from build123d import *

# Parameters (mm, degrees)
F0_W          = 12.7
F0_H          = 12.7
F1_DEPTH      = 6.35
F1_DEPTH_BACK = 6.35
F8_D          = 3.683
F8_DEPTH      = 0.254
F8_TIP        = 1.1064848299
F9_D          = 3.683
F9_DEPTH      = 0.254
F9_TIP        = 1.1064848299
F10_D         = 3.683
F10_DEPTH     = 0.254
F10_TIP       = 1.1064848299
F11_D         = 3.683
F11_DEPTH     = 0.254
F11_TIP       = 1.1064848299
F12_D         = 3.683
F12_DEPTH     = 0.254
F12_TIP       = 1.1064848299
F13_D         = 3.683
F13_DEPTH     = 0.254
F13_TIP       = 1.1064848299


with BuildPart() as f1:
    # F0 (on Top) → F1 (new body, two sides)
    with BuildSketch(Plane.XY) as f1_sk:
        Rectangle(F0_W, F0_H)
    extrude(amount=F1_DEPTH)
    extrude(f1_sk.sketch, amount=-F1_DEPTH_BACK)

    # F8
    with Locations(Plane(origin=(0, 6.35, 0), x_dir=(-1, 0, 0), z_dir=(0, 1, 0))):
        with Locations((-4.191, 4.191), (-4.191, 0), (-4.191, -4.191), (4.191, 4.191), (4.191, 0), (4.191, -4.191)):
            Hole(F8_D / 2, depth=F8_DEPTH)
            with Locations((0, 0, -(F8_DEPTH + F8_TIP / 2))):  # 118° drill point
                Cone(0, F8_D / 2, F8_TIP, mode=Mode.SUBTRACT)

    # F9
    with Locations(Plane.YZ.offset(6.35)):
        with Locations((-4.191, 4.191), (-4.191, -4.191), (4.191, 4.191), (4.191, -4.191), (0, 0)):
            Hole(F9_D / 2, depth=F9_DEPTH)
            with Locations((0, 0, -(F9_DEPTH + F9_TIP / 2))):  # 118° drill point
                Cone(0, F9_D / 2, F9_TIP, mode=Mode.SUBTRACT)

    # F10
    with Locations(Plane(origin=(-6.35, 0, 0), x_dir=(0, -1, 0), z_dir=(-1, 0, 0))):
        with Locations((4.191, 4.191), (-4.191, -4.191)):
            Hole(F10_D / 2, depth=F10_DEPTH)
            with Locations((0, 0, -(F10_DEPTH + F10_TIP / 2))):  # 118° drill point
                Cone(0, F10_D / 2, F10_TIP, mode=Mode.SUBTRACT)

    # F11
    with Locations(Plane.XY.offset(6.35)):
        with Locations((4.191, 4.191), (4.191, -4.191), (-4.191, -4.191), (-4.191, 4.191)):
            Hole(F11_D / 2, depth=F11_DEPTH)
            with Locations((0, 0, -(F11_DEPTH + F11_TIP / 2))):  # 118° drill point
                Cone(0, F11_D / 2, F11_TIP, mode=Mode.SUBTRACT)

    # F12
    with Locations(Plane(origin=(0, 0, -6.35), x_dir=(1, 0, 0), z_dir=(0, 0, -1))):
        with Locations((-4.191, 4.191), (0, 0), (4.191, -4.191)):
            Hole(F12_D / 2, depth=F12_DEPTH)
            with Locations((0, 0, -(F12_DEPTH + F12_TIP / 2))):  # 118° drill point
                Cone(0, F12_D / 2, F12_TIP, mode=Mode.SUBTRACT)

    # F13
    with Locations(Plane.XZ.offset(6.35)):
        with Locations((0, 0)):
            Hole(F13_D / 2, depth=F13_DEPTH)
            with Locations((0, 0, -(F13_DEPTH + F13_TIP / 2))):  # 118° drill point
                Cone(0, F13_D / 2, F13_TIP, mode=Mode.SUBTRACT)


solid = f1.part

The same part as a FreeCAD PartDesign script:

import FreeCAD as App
import Part
import Sketcher
from FreeCAD import Vector
Q = App.Units.Quantity


def add_polygon(sketch, points):
    """Adds a closed chain of lines whose ends are joined by coincident constraints."""
    first, n = sketch.GeometryCount, len(points)
    for a, b in zip(points, points[1:] + points[:1]):
        sketch.addGeometry(Part.LineSegment(App.Vector(*a, 0), App.Vector(*b, 0)), False)
    for i in range(n):
        sketch.addConstraint(Sketcher.Constraint("Coincident", first + i, 2, first + (i + 1) % n, 1))

doc = App.newDocument("Part")
params = doc.addObject("Spreadsheet::Sheet", "Params")
for row, (alias, value) in enumerate([
    ("sketch1_width", "0.5 in"),
    ("pad1_length", "0.25 in"),
    ("pad1_length2", "0.25 in"),
    ("sketch2_diameter", "0.145 in"),
    ("hole_diameter", "0.145 in"),
    ("hole_depth", "0.01 in"),
    ("sketch3_diameter", "0.145 in"),
    ("hole2_diameter", "0.145 in"),
    ("hole2_depth", "0.01 in"),
    ("sketch4_diameter", "0.145 in"),
    ("hole3_diameter", "0.145 in"),
    ("hole3_depth", "0.01 in"),
    ("sketch5_diameter", "0.145 in"),
    ("hole4_diameter", "0.145 in"),
    ("hole4_depth", "0.01 in"),
    ("sketch6_diameter", "0.145 in"),
    ("hole5_diameter", "0.145 in"),
    ("hole5_depth", "0.01 in"),
    ("sketch7_diameter", "0.145 in"),
    ("hole6_diameter", "0.145 in"),
    ("hole6_depth", "0.01 in"),
], start=1):
    params.set(f"A{row}", alias)
    params.set(f"B{row}", "=" + value)
    params.setAlias(f"B{row}", alias)

body = doc.addObject("PartDesign::Body", "Body")

# Sketch on XY plane
sketch1 = body.newObject("Sketcher::SketchObject", "Sketch")
sketch1.AttachmentSupport = (doc.getObject("XY_Plane"), [""])
sketch1.MapMode = "FlatFace"
add_polygon(sketch1, [(-6, 6), (-6, -6), (6, -6), (6, 6)])  # lines 0-3
sketch1.addConstraint([
    Sketcher.Constraint("Vertical", 0),
    Sketcher.Constraint("Horizontal", 1),
    Sketcher.Constraint("Vertical", 2),
    Sketcher.Constraint("Horizontal", 3),
    Sketcher.Constraint("Symmetric", 0, 2, 2, 2, -1, 1),
    Sketcher.Constraint("Equal", 3, 0),
    Sketcher.Constraint("DistanceX", 1, 1, 1, 2, Q("0.5 in")),
])
sketch1.setExpression("Constraints[10]", "Params.sketch1_width")
pad1 = body.newObject("PartDesign::Pad", "Pad")
pad1.Profile = sketch1
pad1.Type = "TwoLengths"
pad1.setExpression("Length", "Params.pad1_length")
pad1.setExpression("Length2", "Params.pad1_length2")

# Sketch on XZ plane
sketch2 = body.newObject("Sketcher::SketchObject", "Sketch001")
sketch2.AttachmentSupport = (doc.getObject("XZ_Plane"), [""])
sketch2.MapMode = "FlatFace"
sketch2.AttachmentOffset = App.Placement(Vector(0, 0, -0.25 * 25.4), App.Rotation())
sketch2.addGeometry([
    Part.Circle(Vector(4.2, 4.2, 0), Vector(0, 0, 1), 1.8),  # 0
    Part.Circle(Vector(4.2, 0, 0), Vector(0, 0, 1), 1.8),  # 1
    Part.Circle(Vector(4.2, -4.2, 0), Vector(0, 0, 1), 1.8),  # 2
    Part.Circle(Vector(-4.2, 4.2, 0), Vector(0, 0, 1), 1.8),  # 3
    Part.Circle(Vector(-4.2, 0, 0), Vector(0, 0, 1), 1.8),  # 4
    Part.Circle(Vector(-4.2, -4.2, 0), Vector(0, 0, 1), 1.8),  # 5
], False)
sketch2.addConstraint([
    Sketcher.Constraint("Equal", 0, 1),
    Sketcher.Constraint("Equal", 1, 2),
    Sketcher.Constraint("Equal", 2, 3),
    Sketcher.Constraint("Equal", 3, 4),
    Sketcher.Constraint("Equal", 4, 5),
    Sketcher.Constraint("Symmetric", 2, 3, 3, 3, -1, 1),
    Sketcher.Constraint("Symmetric", 1, 3, 4, 3, -1, 1),
    Sketcher.Constraint("Symmetric", 0, 3, 5, 3, -1, 1),
    Sketcher.Constraint("Symmetric", 0, 3, 3, 3, -2),
    Sketcher.Constraint("PointOnObject", 1, 3, -1),
    Sketcher.Constraint("Vertical", 0, 3, 1, 3),
    Sketcher.Constraint("Diameter", 0, Q("0.145 in")),
    Sketcher.Constraint("DistanceY", 2, 3, 0, 3, Q("0.33 in")),
    Sketcher.Constraint("DistanceX", 3, 3, 0, 3, Q("0.33 in")),
])
sketch2.setExpression("Constraints[11]", "Params.sketch2_diameter")
doc.recompute()
hole = body.newObject("PartDesign::Hole", "Hole")
hole.Profile = sketch2
hole.ThreadType = "None"
hole.setExpression("Diameter", "Params.hole_diameter")
hole.DepthType = "Dimension"
hole.setExpression("Depth", "Params.hole_depth")
hole.DrillPoint = "Angled"
hole.DrillPointAngle = 118
hole.Reversed = True

# Sketch on YZ plane
sketch3 = body.newObject("Sketcher::SketchObject", "Sketch002")
sketch3.AttachmentSupport = (doc.getObject("YZ_Plane"), [""])
sketch3.MapMode = "FlatFace"
sketch3.AttachmentOffset = App.Placement(Vector(0, 0, 0.25 * 25.4), App.Rotation())
sketch3.addGeometry([
    Part.Circle(Vector(-4.2, 4.2, 0), Vector(0, 0, 1), 1.8),  # 0
    Part.Circle(Vector(-4.2, -4.2, 0), Vector(0, 0, 1), 1.8),  # 1
    Part.Circle(Vector(4.2, 4.2, 0), Vector(0, 0, 1), 1.8),  # 2
    Part.Circle(Vector(4.2, -4.2, 0), Vector(0, 0, 1), 1.8),  # 3
    Part.Circle(Vector(0, 0, 0), Vector(0, 0, 1), 1.8),  # 4
], False)
sketch3.addConstraint([
    Sketcher.Constraint("Coincident", 4, 3, -1, 1),
    Sketcher.Constraint("Equal", 0, 1),
    Sketcher.Constraint("Equal", 1, 2),
    Sketcher.Constraint("Equal", 2, 3),
    Sketcher.Constraint("Equal", 3, 4),
    Sketcher.Constraint("Symmetric", 1, 3, 2, 3, -1, 1),
    Sketcher.Constraint("Symmetric", 0, 3, 3, 3, -1, 1),
    Sketcher.Constraint("Symmetric", 0, 3, 2, 3, -2),
    Sketcher.Constraint("Diameter", 0, Q("0.145 in")),
    Sketcher.Constraint("DistanceY", 1, 3, 0, 3, Q("0.33 in")),
    Sketcher.Constraint("DistanceX", 0, 3, 2, 3, Q("0.33 in")),
])
sketch3.setExpression("Constraints[8]", "Params.sketch3_diameter")
doc.recompute()
hole2 = body.newObject("PartDesign::Hole", "Hole001")
hole2.Profile = sketch3
hole2.ThreadType = "None"
hole2.setExpression("Diameter", "Params.hole2_diameter")
hole2.DepthType = "Dimension"
hole2.setExpression("Depth", "Params.hole2_depth")
hole2.DrillPoint = "Angled"
hole2.DrillPointAngle = 118

# Sketch on YZ plane
sketch4 = body.newObject("Sketcher::SketchObject", "Sketch003")
sketch4.AttachmentSupport = (doc.getObject("YZ_Plane"), [""])
sketch4.MapMode = "FlatFace"
sketch4.AttachmentOffset = App.Placement(Vector(0, 0, -0.25 * 25.4), App.Rotation())
sketch4.addGeometry([
    Part.Circle(Vector(-4.2, 4.2, 0), Vector(0, 0, 1), 1.8),
    Part.Circle(Vector(4.2, -4.2, 0), Vector(0, 0, 1), 1.8),
], False)
sketch4.addConstraint([
    Sketcher.Constraint("Equal", 0, 1),
    Sketcher.Constraint("Symmetric", 0, 3, 1, 3, -1, 1),
    Sketcher.Constraint("Diameter", 0, Q("0.145 in")),
    Sketcher.Constraint("DistanceX", 0, 3, 1, 3, Q("0.33 in")),
    Sketcher.Constraint("DistanceY", 1, 3, 0, 3, Q("0.33 in")),
])
sketch4.setExpression("Constraints[2]", "Params.sketch4_diameter")
doc.recompute()
hole3 = body.newObject("PartDesign::Hole", "Hole002")
hole3.Profile = sketch4
hole3.ThreadType = "None"
hole3.setExpression("Diameter", "Params.hole3_diameter")
hole3.DepthType = "Dimension"
hole3.setExpression("Depth", "Params.hole3_depth")
hole3.DrillPoint = "Angled"
hole3.DrillPointAngle = 118
hole3.Reversed = True

# Sketch on XY plane
sketch5 = body.newObject("Sketcher::SketchObject", "Sketch004")
sketch5.AttachmentSupport = (doc.getObject("XY_Plane"), [""])
sketch5.MapMode = "FlatFace"
sketch5.AttachmentOffset = App.Placement(Vector(0, 0, 0.25 * 25.4), App.Rotation())
sketch5.addGeometry([
    Part.Circle(Vector(4.2, 4.2, 0), Vector(0, 0, 1), 1.8),
    Part.Circle(Vector(4.2, -4.2, 0), Vector(0, 0, 1), 1.8),
    Part.Circle(Vector(-4.2, -4.2, 0), Vector(0, 0, 1), 1.8),
    Part.Circle(Vector(-4.2, 4.2, 0), Vector(0, 0, 1), 1.8),
], False)
sketch5.addConstraint([
    Sketcher.Constraint("Equal", 0, 1),
    Sketcher.Constraint("Equal", 1, 2),
    Sketcher.Constraint("Equal", 2, 3),
    Sketcher.Constraint("Symmetric", 0, 3, 2, 3, -1, 1),
    Sketcher.Constraint("Symmetric", 1, 3, 3, 3, -1, 1),
    Sketcher.Constraint("Symmetric", 1, 3, 2, 3, -2),
    Sketcher.Constraint("Diameter", 0, Q("0.145 in")),
    Sketcher.Constraint("DistanceY", 1, 3, 0, 3, Q("0.33 in")),
    Sketcher.Constraint("DistanceX", 2, 3, 1, 3, Q("0.33 in")),
])
sketch5.setExpression("Constraints[6]", "Params.sketch5_diameter")
doc.recompute()
hole4 = body.newObject("PartDesign::Hole", "Hole003")
hole4.Profile = sketch5
hole4.ThreadType = "None"
hole4.setExpression("Diameter", "Params.hole4_diameter")
hole4.DepthType = "Dimension"
hole4.setExpression("Depth", "Params.hole4_depth")
hole4.DrillPoint = "Angled"
hole4.DrillPointAngle = 118

# Sketch on XY plane
sketch6 = body.newObject("Sketcher::SketchObject", "Sketch005")
sketch6.AttachmentSupport = (doc.getObject("XY_Plane"), [""])
sketch6.MapMode = "FlatFace"
sketch6.AttachmentOffset = App.Placement(Vector(0, 0, -0.25 * 25.4), App.Rotation())
sketch6.addGeometry([
    Part.Circle(Vector(-4.2, -4.2, 0), Vector(0, 0, 1), 1.8),
    Part.Circle(Vector(0, 0, 0), Vector(0, 0, 1), 1.8),
    Part.Circle(Vector(4.2, 4.2, 0), Vector(0, 0, 1), 1.8),
], False)
sketch6.addConstraint([
    Sketcher.Constraint("Coincident", 1, 3, -1, 1),
    Sketcher.Constraint("Equal", 0, 1),
    Sketcher.Constraint("Equal", 1, 2),
    Sketcher.Constraint("Symmetric", 0, 3, 2, 3, -1, 1),
    Sketcher.Constraint("Diameter", 0, Q("0.145 in")),
    Sketcher.Constraint("DistanceX", 0, 3, 2, 3, Q("0.33 in")),
    Sketcher.Constraint("DistanceY", 0, 3, 2, 3, Q("0.33 in")),
])
sketch6.setExpression("Constraints[4]", "Params.sketch6_diameter")
doc.recompute()
hole5 = body.newObject("PartDesign::Hole", "Hole004")
hole5.Profile = sketch6
hole5.ThreadType = "None"
hole5.setExpression("Diameter", "Params.hole5_diameter")
hole5.DepthType = "Dimension"
hole5.setExpression("Depth", "Params.hole5_depth")
hole5.DrillPoint = "Angled"
hole5.DrillPointAngle = 118
hole5.Reversed = True

# Sketch on XZ plane
sketch7 = body.newObject("Sketcher::SketchObject", "Sketch006")
sketch7.AttachmentSupport = (doc.getObject("XZ_Plane"), [""])
sketch7.MapMode = "FlatFace"
sketch7.AttachmentOffset = App.Placement(Vector(0, 0, 0.25 * 25.4), App.Rotation())
sketch7.addGeometry(Part.Circle(Vector(0, 0, 0), Vector(0, 0, 1), 1.8), False)
sketch7.addConstraint([
    Sketcher.Constraint("Coincident", 0, 3, -1, 1),
    Sketcher.Constraint("Diameter", 0, Q("0.145 in")),
])
sketch7.setExpression("Constraints[1]", "Params.sketch7_diameter")
doc.recompute()
hole6 = body.newObject("PartDesign::Hole", "Hole005")
hole6.Profile = sketch7
hole6.ThreadType = "None"
hole6.setExpression("Diameter", "Params.hole6_diameter")
hole6.DepthType = "Dimension"
hole6.setExpression("Depth", "Params.hole6_depth")
hole6.DrillPoint = "Angled"
hole6.DrillPointAngle = 118

doc.recompute()
